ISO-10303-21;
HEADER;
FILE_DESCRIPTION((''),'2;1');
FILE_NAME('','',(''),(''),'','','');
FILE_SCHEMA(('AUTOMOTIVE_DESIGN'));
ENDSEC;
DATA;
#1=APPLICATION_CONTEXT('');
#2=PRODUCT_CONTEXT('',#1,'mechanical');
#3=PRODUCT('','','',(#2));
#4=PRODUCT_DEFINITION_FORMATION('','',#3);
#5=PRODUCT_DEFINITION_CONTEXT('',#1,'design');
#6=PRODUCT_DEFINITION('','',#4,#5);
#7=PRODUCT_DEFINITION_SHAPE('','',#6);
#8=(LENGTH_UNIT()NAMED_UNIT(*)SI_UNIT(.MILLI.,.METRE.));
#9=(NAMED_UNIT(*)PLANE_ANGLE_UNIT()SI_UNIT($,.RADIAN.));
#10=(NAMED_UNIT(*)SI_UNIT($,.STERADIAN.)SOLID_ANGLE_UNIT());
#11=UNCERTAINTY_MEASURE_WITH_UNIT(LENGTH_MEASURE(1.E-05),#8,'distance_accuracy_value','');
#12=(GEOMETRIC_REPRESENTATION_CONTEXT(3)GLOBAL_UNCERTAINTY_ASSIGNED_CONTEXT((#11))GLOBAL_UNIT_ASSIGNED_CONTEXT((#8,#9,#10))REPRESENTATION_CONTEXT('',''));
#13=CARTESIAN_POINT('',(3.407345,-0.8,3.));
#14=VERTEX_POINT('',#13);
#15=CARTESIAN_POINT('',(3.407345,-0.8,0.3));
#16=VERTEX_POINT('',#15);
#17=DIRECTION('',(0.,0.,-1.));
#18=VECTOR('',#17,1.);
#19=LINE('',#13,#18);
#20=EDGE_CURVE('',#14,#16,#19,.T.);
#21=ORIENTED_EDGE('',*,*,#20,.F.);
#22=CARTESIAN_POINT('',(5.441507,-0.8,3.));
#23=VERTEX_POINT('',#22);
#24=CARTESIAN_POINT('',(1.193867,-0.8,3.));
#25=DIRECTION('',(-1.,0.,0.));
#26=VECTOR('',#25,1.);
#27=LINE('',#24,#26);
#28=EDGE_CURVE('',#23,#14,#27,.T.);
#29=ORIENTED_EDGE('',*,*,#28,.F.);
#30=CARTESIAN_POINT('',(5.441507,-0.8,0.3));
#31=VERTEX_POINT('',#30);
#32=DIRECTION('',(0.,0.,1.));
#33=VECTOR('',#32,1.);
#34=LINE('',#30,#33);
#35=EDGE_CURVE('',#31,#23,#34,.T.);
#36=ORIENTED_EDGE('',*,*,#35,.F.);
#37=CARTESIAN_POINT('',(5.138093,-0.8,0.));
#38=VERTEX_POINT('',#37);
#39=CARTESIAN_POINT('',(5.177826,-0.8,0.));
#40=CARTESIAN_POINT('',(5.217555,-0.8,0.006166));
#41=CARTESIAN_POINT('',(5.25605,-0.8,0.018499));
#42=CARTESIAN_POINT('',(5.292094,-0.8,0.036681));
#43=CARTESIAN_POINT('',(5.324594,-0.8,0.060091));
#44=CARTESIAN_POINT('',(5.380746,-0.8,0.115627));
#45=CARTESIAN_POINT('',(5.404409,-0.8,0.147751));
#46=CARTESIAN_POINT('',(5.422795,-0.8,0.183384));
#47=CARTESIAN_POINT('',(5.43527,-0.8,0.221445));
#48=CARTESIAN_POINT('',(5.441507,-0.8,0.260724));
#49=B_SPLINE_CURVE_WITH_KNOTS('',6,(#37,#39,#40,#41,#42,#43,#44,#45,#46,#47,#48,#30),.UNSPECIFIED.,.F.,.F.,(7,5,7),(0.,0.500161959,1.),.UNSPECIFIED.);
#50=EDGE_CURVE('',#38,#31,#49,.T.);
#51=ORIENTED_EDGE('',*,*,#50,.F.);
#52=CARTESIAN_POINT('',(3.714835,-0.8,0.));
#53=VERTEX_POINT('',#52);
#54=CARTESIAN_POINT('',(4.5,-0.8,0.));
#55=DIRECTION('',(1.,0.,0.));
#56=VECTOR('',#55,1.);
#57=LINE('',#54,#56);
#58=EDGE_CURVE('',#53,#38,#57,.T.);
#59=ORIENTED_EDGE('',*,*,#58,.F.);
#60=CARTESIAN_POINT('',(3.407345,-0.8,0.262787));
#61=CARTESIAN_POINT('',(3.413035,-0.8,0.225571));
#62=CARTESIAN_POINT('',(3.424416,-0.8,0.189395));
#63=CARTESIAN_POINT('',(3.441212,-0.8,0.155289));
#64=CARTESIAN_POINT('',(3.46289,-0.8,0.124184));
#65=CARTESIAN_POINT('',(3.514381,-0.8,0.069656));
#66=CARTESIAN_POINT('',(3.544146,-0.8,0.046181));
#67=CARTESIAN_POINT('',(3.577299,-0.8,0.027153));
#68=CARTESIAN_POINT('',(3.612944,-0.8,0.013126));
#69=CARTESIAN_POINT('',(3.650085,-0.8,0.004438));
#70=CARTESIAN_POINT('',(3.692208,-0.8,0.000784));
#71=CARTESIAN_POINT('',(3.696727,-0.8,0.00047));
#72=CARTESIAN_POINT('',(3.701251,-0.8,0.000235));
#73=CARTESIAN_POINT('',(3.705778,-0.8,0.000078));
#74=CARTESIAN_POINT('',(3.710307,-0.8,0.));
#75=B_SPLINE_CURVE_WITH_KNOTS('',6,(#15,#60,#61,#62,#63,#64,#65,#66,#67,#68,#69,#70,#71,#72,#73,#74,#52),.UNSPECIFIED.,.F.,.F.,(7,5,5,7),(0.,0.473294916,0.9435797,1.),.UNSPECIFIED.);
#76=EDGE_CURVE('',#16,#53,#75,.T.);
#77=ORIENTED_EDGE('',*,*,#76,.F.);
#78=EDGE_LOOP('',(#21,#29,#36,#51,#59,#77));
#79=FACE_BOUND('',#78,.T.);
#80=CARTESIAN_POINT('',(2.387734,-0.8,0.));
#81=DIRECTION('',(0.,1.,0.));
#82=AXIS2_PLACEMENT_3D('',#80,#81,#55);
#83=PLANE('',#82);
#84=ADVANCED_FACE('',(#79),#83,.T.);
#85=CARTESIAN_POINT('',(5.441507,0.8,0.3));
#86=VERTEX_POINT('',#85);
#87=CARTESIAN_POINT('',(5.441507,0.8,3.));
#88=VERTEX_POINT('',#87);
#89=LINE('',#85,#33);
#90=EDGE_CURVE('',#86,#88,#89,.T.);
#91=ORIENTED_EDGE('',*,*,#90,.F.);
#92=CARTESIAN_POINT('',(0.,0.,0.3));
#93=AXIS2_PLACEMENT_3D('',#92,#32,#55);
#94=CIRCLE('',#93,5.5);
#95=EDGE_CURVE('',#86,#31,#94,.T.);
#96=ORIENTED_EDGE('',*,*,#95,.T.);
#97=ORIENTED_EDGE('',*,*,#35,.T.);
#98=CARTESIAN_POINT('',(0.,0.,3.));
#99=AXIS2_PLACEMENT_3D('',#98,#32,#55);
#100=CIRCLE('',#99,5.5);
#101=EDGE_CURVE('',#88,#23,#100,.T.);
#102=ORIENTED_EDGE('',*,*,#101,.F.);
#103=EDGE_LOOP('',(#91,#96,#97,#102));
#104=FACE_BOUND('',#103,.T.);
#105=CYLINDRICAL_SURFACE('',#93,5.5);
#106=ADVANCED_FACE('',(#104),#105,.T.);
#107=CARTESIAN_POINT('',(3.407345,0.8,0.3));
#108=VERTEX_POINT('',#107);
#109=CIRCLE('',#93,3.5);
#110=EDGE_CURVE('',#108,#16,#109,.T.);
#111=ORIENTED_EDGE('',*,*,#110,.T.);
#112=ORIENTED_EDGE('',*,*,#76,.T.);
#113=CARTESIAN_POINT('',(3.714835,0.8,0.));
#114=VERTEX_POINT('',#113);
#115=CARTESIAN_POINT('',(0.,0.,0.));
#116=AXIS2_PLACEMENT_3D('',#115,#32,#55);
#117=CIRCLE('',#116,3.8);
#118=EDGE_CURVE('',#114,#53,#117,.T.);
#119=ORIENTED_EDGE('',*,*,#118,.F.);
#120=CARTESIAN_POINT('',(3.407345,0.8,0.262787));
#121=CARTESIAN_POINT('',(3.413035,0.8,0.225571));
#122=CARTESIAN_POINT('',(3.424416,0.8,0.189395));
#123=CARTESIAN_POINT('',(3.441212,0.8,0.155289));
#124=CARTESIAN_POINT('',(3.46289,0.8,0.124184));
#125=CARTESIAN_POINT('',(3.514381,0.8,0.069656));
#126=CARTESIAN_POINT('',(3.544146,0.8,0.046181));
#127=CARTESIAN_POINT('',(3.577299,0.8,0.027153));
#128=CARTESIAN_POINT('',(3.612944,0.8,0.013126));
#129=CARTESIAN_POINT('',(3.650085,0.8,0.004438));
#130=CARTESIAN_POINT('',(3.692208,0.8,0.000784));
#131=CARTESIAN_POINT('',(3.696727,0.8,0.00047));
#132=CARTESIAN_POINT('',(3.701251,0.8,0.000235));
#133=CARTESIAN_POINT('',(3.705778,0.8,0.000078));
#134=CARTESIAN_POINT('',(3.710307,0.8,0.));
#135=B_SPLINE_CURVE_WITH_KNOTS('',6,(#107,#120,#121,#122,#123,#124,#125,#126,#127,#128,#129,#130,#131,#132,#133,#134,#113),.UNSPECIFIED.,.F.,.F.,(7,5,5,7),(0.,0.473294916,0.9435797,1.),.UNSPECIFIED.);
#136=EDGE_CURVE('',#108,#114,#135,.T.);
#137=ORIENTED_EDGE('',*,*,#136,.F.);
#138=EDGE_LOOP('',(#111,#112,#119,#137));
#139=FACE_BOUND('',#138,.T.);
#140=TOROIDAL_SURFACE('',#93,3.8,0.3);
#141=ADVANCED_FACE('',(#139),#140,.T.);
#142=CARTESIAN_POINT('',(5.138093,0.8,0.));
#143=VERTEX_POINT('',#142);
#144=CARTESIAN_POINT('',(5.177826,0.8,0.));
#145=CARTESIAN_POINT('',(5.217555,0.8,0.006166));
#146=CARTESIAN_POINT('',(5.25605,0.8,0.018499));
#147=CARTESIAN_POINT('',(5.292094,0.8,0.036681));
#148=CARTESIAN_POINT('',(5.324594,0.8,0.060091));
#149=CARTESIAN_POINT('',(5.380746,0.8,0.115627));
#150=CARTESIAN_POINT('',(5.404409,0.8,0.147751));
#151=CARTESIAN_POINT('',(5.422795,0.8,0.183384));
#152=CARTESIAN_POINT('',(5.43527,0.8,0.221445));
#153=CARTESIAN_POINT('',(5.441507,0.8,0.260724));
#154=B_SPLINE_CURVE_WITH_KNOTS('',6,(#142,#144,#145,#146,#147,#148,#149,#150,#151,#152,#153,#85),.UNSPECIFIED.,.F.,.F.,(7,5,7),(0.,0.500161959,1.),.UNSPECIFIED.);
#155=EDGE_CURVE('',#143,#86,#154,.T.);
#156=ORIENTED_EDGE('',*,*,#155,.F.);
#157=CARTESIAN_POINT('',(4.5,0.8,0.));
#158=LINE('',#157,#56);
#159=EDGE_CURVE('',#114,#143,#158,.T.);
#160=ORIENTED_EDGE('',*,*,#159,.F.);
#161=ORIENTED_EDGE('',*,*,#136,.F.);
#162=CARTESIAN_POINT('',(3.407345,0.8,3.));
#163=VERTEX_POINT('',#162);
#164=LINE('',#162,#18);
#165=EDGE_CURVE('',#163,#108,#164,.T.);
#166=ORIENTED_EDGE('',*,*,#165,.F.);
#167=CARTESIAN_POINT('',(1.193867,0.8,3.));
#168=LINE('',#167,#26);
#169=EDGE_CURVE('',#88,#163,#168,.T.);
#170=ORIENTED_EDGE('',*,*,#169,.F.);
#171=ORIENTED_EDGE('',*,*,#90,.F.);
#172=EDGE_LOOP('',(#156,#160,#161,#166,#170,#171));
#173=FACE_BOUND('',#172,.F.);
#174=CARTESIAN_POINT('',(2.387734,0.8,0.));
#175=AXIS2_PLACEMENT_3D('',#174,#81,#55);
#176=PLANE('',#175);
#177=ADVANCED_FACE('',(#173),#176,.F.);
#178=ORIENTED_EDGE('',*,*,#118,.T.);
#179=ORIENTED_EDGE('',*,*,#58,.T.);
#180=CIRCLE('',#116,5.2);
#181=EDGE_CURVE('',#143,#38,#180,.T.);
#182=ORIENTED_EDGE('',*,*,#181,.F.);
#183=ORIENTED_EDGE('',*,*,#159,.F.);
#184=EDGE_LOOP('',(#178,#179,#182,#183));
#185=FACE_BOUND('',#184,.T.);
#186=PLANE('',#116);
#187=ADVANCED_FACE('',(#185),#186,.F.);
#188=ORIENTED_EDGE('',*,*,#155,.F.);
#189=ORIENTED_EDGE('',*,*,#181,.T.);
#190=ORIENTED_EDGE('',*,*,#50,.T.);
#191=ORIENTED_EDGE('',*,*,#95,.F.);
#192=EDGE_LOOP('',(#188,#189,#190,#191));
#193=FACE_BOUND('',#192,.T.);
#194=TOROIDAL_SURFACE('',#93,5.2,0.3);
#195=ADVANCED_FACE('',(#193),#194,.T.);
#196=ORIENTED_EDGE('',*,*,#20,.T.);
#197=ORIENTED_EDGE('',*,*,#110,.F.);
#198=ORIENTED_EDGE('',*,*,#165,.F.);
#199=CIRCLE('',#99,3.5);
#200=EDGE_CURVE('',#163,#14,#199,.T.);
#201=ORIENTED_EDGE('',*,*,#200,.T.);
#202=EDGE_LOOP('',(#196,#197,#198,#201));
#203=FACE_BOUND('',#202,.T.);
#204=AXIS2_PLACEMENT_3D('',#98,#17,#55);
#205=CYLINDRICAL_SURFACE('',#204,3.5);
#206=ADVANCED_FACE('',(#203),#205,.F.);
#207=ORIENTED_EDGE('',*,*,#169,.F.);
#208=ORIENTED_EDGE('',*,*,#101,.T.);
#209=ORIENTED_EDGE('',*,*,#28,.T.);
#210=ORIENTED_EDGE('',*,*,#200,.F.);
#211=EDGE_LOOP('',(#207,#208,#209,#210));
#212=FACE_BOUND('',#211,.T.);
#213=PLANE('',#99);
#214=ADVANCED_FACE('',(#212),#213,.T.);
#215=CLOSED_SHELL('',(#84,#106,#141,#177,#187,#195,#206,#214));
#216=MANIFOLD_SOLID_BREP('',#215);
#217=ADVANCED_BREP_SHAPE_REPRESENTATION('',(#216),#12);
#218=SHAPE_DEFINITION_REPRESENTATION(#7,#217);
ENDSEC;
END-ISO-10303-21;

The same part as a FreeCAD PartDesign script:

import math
import FreeCAD as App
import Part
import Sketcher

V = App.Vector
Q = App.Units.Quantity

doc = App.newDocument("Part")
body = doc.addObject("PartDesign::Body", "Body")

# Sketch on XZ plane
sketch1 = body.newObject("Sketcher::SketchObject", "Sketch")
sketch1.AttachmentSupport = (doc.getObject("XZ_Plane"), [""])
sketch1.MapMode = "FlatFace"
sketch1.addGeometry([
    Part.ArcOfCircle(Part.Circle(V(3.8, 0.3, 0), V(0, 0, 1), 0.3), math.radians(-180), math.radians(-90)),  # 0
    Part.LineSegment(V(3.8, 0, 0), V(5.2, 0, 0)),  # 1
    Part.ArcOfCircle(Part.Circle(V(5.2, 0.3, 0), V(0, 0, 1), 0.3), math.radians(-90), math.radians(0)),  # 2
    Part.LineSegment(V(5.5, 0.3, 0), V(5.5, 3, 0)),  # 3
    Part.LineSegment(V(5.5, 3, 0), V(3.5, 3, 0)),  # 4
    Part.LineSegment(V(3.5, 3, 0), V(3.5, 0.3, 0)),  # 5
], False)
sketch1.addConstraint([
    Sketcher.Constraint("Tangent", 0, 2, 1, 1),
    Sketcher.Constraint("Tangent", 1, 2, 2, 1),
    Sketcher.Constraint("Tangent", 2, 2, 3, 1),
    Sketcher.Constraint("Coincident", 3, 2, 4, 1),
    Sketcher.Constraint("Coincident", 4, 2, 5, 1),
    Sketcher.Constraint("Tangent", 5, 2, 0, 1),
    Sketcher.Constraint("Horizontal", 1),
    Sketcher.Constraint("Vertical", 3),
    Sketcher.Constraint("Horizontal", 4),
    Sketcher.Constraint("Vertical", 5),
    Sketcher.Constraint("Equal", 0, 2),
    Sketcher.Constraint("PointOnObject", 0, 2, -1),
    Sketcher.Constraint("Radius", 0, Q("0.3 mm")),
    Sketcher.Constraint("DistanceX", 4, 2, 4, 1, Q("2 mm")),
    Sketcher.Constraint("DistanceY", 3, 1, 3, 2, Q("2.7 mm")),
    Sketcher.Constraint("DistanceX", -1, 1, 0, 3, Q("3.8 mm")),
])
revolution = body.newObject("PartDesign::Revolution", "Revolution")
revolution.Profile = sketch1
revolution.ReferenceAxis = (sketch1, ["V_Axis"])
revolution.Angle = 360

# Sketch on XY plane
sketch2 = body.newObject("Sketcher::SketchObject", "Sketch001")
sketch2.AttachmentSupport = (doc.getObject("XY_Plane"), [""])
sketch2.MapMode = "FlatFace"
sketch2.addGeometry([
    Part.LineSegment(V(2.4, 0.8, 0), V(2.4, -0.8, 0)),
    Part.LineSegment(V(2.4, -0.8, 0), V(6.6, -0.8, 0)),
    Part.LineSegment(V(6.6, -0.8, 0), V(6.6, 0.8, 0)),
    Part.LineSegment(V(6.6, 0.8, 0), V(2.4, 0.8, 0)),
], False)
sketch2.addConstraint([
    Sketcher.Constraint("Coincident", 0, 2, 1, 1),
    Sketcher.Constraint("Coincident", 1, 2, 2, 1),
    Sketcher.Constraint("Coincident", 2, 2, 3, 1),
    Sketcher.Constraint("Coincident", 3, 2, 0, 1),
    Sketcher.Constraint("Vertical", 0),
    Sketcher.Constraint("Horizontal", 1),
    Sketcher.Constraint("Vertical", 2),
    Sketcher.Constraint("Horizontal", 3),
    Sketcher.Constraint("DistanceY", 0, 2, 0, 1, Q("1.6 mm")),
    Sketcher.Constraint("DistanceY", 0, 2, -1, 1, Q("0.8 mm")),
    Sketcher.Constraint("DistanceX", 1, 1, 1, 2, Q("4.224532 mm")),
    Sketcher.Constraint("DistanceX", -1, 1, 0, 2, Q("2.387734 mm")),
])
pocket1 = body.newObject("PartDesign::Pocket", "Pocket")
pocket1.Profile = sketch2
pocket1.Length = 4
pocket1.Reversed = True

doc.recompute()
